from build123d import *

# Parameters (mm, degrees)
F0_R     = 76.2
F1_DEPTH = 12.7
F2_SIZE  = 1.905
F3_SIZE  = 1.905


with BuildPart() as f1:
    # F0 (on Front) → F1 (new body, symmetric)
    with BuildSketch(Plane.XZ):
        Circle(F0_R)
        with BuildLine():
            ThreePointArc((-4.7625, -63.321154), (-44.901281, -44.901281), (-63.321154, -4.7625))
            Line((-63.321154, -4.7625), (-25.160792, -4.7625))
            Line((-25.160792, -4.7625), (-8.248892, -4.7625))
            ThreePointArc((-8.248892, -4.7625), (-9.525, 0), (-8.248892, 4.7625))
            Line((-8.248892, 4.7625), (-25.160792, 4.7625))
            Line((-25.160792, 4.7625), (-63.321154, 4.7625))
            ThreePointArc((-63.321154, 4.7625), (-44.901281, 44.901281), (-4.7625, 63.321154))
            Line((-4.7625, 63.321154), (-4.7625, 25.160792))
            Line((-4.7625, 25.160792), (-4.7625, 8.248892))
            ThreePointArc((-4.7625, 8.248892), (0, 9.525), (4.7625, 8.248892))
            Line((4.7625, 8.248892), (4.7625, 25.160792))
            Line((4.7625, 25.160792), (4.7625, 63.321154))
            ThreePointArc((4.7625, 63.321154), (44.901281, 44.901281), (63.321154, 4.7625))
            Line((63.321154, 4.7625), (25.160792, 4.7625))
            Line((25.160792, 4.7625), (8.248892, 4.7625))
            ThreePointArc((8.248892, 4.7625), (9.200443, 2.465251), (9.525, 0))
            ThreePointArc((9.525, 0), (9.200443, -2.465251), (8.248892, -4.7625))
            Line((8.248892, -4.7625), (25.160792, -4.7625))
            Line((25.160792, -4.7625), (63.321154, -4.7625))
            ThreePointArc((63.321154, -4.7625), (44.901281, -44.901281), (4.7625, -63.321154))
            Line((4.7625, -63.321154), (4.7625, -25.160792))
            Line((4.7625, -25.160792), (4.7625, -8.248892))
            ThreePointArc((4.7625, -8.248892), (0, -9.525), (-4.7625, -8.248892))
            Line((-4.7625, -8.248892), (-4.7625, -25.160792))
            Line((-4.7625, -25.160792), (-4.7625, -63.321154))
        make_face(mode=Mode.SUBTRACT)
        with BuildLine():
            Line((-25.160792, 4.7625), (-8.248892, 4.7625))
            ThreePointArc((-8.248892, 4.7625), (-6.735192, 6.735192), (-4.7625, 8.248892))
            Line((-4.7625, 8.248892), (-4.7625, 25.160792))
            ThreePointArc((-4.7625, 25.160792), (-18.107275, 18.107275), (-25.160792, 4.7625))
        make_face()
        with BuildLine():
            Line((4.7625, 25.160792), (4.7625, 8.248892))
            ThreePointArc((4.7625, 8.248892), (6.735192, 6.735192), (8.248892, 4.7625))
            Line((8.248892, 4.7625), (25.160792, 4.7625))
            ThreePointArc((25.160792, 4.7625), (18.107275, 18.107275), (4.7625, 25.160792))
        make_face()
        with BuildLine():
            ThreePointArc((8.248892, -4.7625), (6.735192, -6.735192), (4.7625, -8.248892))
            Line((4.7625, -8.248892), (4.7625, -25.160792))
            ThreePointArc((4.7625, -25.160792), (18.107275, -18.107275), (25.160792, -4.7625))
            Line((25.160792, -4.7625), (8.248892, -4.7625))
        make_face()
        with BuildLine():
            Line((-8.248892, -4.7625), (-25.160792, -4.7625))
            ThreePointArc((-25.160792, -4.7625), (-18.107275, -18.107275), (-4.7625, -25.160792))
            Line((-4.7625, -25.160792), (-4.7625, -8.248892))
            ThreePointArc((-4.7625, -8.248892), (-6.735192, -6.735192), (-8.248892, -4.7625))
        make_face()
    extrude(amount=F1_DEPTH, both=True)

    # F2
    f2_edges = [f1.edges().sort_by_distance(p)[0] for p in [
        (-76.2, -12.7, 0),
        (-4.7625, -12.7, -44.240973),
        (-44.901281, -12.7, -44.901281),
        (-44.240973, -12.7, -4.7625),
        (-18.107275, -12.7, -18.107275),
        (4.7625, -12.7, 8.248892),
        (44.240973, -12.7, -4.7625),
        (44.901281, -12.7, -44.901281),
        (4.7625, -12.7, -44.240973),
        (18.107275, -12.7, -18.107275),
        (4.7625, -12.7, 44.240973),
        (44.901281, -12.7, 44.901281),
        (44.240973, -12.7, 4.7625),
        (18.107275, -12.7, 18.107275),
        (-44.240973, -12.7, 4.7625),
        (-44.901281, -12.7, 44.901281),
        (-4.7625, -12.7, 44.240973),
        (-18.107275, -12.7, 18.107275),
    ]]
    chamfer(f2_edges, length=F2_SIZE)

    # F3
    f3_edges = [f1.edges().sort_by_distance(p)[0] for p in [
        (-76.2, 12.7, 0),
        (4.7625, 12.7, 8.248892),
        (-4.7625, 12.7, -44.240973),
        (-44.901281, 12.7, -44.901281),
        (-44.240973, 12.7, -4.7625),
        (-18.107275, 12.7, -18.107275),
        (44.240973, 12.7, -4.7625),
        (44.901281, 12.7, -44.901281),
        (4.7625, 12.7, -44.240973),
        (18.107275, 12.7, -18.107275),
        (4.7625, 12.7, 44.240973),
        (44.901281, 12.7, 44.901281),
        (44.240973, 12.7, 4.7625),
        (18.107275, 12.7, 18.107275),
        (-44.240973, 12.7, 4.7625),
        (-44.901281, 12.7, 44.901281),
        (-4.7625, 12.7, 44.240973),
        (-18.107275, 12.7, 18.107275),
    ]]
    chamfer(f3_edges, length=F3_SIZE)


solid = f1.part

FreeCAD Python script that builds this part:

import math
import FreeCAD as App
import Part
import Sketcher
Q = App.Units.Quantity


def edges_at(feature, points):
    """Names of the edges that pass closest to the given points."""
    edges = feature.Shape.Edges
    near = lambda p: min(range(len(edges)), key=lambda i: edges[i].distToShape(Part.Vertex(*p))[0])
    return sorted({f"Edge{near(p) + 1}" for p in points})

doc = App.newDocument("Part")
params = doc.addObject("Spreadsheet::Sheet", "Params")
for row, (alias, value) in enumerate([
    ("sketch1_diameter", "6 in"),
    ("sketch1_radius", "2.4999999 in"),
    ("sketch1_radius2", "0.375 in"),
    ("pad1_length", "1 in"),
    ("chamfer_size", "0.075 in"),
    ("chamfer2_size", "0.075 in"),
], start=1):
    params.set(f"A{row}", alias)
    params.set(f"B{row}", "=" + value)
    params.setAlias(f"B{row}", alias)

body = doc.addObject("PartDesign::Body", "Body")

# Sketch on XZ plane
sketch1 = doc.addObject("Sketcher::SketchObject", "Sketch")
body.addObject(sketch1)
sketch1.AttachmentSupport = (doc.XZ_Plane, [""])
sketch1.MapMode = "FlatFace"
sketch1.addGeometry([
    Part.Circle(App.Vector(0, 0, 0), App.Vector(0, 0, 1), 76.2),  # 0
    Part.LineSegment(App.Vector(-4.7625, -25.160792, 0), App.Vector(-4.7625, -63.321154, 0)),  # 1
    Part.ArcOfCircle(Part.Circle(App.Vector(-0.000003, -0.000003, 0), App.Vector(0, 0, 1), 63.499997), math.radians(-175.69878), math.radians(-94.30122)),  # 2
    Part.LineSegment(App.Vector(-63.321154, -4.7625, 0), App.Vector(-25.160792, -4.7625, 0)),  # 3
    Part.ArcOfCircle(Part.Circle(App.Vector(0.000004, 0.000004, 0), App.Vector(0, 0, 1), 25.607559), math.radians(-169.281704), math.radians(-100.718296)),  # 4
    Part.ArcOfCircle(Part.Circle(App.Vector(0, 0, 0), App.Vector(0, 0, 1), 9.525), math.radians(150.000001), math.radians(209.999999)),  # 5
    Part.ArcOfCircle(Part.Circle(App.Vector(0.000003, -0.000003, 0), App.Vector(0, 0, 1), 9.525004), math.radians(120.000007), math.radians(149.999993)),  # 6
    Part.ArcOfCircle(Part.Circle(App.Vector(0, 0, 0), App.Vector(0, 0, 1), 9.525), math.radians(60.000001), math.radians(119.999999)),  # 7
    Part.ArcOfCircle(Part.Circle(App.Vector(-0.000003, -0.000003, 0), App.Vector(0, 0, 1), 9.525004), math.radians(30.000007), math.radians(59.999993)),  # 8
    Part.ArcOfCircle(Part.Circle(App.Vector(-0.000017, -0.000004, 0), App.Vector(0, 0, 1), 9.525017), math.radians(0.000027), math.radians(29.999972)),  # 9
    Part.ArcOfCircle(Part.Circle(App.Vector(-0.000017, 0.000004, 0), App.Vector(0, 0, 1), 9.525017), math.radians(-29.999972), math.radians(-0.000027)),  # 10
    Part.ArcOfCircle(Part.Circle(App.Vector(-0.000003, 0.000003, 0), App.Vector(0, 0, 1), 9.525004), math.radians(-59.999993), math.radians(-30.000007)),  # 11
    Part.ArcOfCircle(Part.Circle(App.Vector(0, 0, 0), App.Vector(0, 0, 1), 9.525), math.radians(-119.999999), math.radians(-60.000001)),  # 12
    Part.ArcOfCircle(Part.Circle(App.Vector(0.000003, 0.000003, 0), App.Vector(0, 0, 1), 9.525004), math.radians(-149.999993), math.radians(-120.000007)),  # 13
    Part.LineSegment(App.Vector(25.160792, -4.7625, 0), App.Vector(63.321154, -4.7625, 0)),  # 14
    Part.ArcOfCircle(Part.Circle(App.Vector(0.000003, -0.000003, 0), App.Vector(0, 0, 1), 63.499997), math.radians(-85.69878), math.radians(-4.30122)),  # 15
    Part.LineSegment(App.Vector(4.7625, -63.321154, 0), App.Vector(4.7625, -25.160792, 0)),  # 16
    Part.ArcOfCircle(Part.Circle(App.Vector(-0.000004, 0.000004, 0), App.Vector(0, 0, 1), 25.607559), math.radians(-79.281704), math.radians(-10.718296)),  # 17
    Part.LineSegment(App.Vector(4.7625, 25.160792, 0), App.Vector(4.7625, 63.321154, 0)),  # 18
    Part.ArcOfCircle(Part.Circle(App.Vector(0.000003, 0.000003, 0), App.Vector(0, 0, 1), 63.499997), math.radians(4.30122), math.radians(85.69878)),  # 19
    Part.LineSegment(App.Vector(63.321154, 4.7625, 0), App.Vector(25.160792, 4.7625, 0)),  # 20
    Part.ArcOfCircle(Part.Circle(App.Vector(-0.000004, -0.000004, 0), App.Vector(0, 0, 1), 25.607559), math.radians(10.718296), math.radians(79.281704)),  # 21
    Part.LineSegment(App.Vector(-4.7625, 63.321154, 0), App.Vector(-4.7625, 25.160792, 0)),  # 22
    Part.ArcOfCircle(Part.Circle(App.Vector(0.000004, -0.000004, 0), App.Vector(0, 0, 1), 25.607559), math.radians(100.718296), math.radians(169.281704)),  # 23
    Part.LineSegment(App.Vector(-25.160792, 4.7625, 0), App.Vector(-63.321154, 4.7625, 0)),  # 24
    Part.ArcOfCircle(Part.Circle(App.Vector(-0.000003, 0.000003, 0), App.Vector(0, 0, 1), 63.499997), math.radians(94.30122), math.radians(175.69878)),  # 25
], False)
sketch1.addConstraint([
    Sketcher.Constraint("Coincident", 1, 2, 2, 2),
    Sketcher.Constraint("Coincident", 2, 1, 3, 1),
    Sketcher.Constraint("Coincident", 3, 2, 4, 1),
    Sketcher.Constraint("Coincident", 4, 2, 1, 1),
    Sketcher.Constraint("Tangent", 5, 1, 6, 2),
    Sketcher.Constraint("Tangent", 6, 1, 7, 2),
    Sketcher.Constraint("Tangent", 7, 1, 8, 2),
    Sketcher.Constraint("Tangent", 8, 1, 9, 2),
    Sketcher.Constraint("Tangent", 9, 1, 10, 2),
    Sketcher.Constraint("Tangent", 10, 1, 11, 2),
    Sketcher.Constraint("Tangent", 11, 1, 12, 2),
    Sketcher.Constraint("Tangent", 12, 1, 13, 2),
    Sketcher.Constraint("Tangent", 13, 1, 5, 2),
    Sketcher.Constraint("Coincident", 14, 2, 15, 2),
    Sketcher.Constraint("Coincident", 15, 1, 16, 1),
    Sketcher.Constraint("Coincident", 16, 2, 17, 1),
    Sketcher.Constraint("Coincident", 17, 2, 14, 1),
    Sketcher.Constraint("Coincident", 18, 2, 19, 2),
    Sketcher.Constraint("Coincident", 19, 1, 20, 1),
    Sketcher.Constraint("Coincident", 20, 2, 21, 1),
    Sketcher.Constraint("Coincident", 21, 2, 18, 1),
    Sketcher.Constraint("Coincident", 22, 2, 23, 1),
    Sketcher.Constraint("Coincident", 23, 2, 24, 1),
    Sketcher.Constraint("Coincident", 24, 2, 25, 2),
    Sketcher.Constraint("Coincident", 25, 1, 22, 1),
    Sketcher.Constraint("Vertical", 1),
    Sketcher.Constraint("Horizontal", 3),
    Sketcher.Constraint("Horizontal", 14),
    Sketcher.Constraint("Vertical", 16),
    Sketcher.Constraint("Vertical", 18),
    Sketcher.Constraint("Horizontal", 20),
    Sketcher.Constraint("Vertical", 22),
    Sketcher.Constraint("Horizontal", 24),
    Sketcher.Constraint("Coincident", 0, 3, -1, 1),
    Sketcher.Constraint("Coincident", 2, 3, -1, 1),
    Sketcher.Constraint("Coincident", 4, 3, -1, 1),
    Sketcher.Constraint("Coincident", 5, 3, -1, 1),
    Sketcher.Constraint("Coincident", 7, 3, -1, 1),
    Sketcher.Constraint("Coincident", 11, 3, -1, 1),
    Sketcher.Constraint("Coincident", 15, 3, -1, 1),
    Sketcher.Constraint("Coincident", 17, 3, -1, 1),
    Sketcher.Constraint("Coincident", 19, 3, -1, 1),
    Sketcher.Constraint("Coincident", 21, 3, -1, 1),
    Sketcher.Constraint("Coincident", 23, 3, -1, 1),
    Sketcher.Constraint("Coincident", 25, 3, -1, 1),
    Sketcher.Constraint("Equal", 6, 8),
    Sketcher.Constraint("Equal", 9, 10),
    Sketcher.Constraint("Equal", 2, 15),
    Sketcher.Constraint("Equal", 4, 17),
    Sketcher.Constraint("Equal", 15, 19),
    Sketcher.Constraint("Equal", 17, 21),
    Sketcher.Constraint("Equal", 21, 23),
    Sketcher.Constraint("Equal", 19, 25),
    Sketcher.Constraint("PointOnObject", 9, 1, -1),
    Sketcher.Constraint("Horizontal", 6, 1, 7, 1),
    Sketcher.Constraint("Horizontal", 5, 1, 8, 1),
    Sketcher.Constraint("Horizontal", 3, 2, 10, 1),
    Sketcher.Constraint("Horizontal", 11, 1, 12, 1),
    Sketcher.Constraint("Horizontal", 10, 1, 13, 1),
    Sketcher.Constraint("Horizontal", 13, 1, 14, 2),
    Sketcher.Constraint("Horizontal", 1, 2, 15, 1),
    Sketcher.Constraint("Horizontal", 8, 1, 19, 1),
    Sketcher.Constraint("Horizontal", 21, 2, 22, 2),
    Sketcher.Constraint("Horizontal", 20, 2, 23, 2),
    Sketcher.Constraint("Vertical", 4, 2, 6, 1),
    Sketcher.Constraint("Vertical", 8, 1, 10, 1),
    Sketcher.Constraint("Vertical", 7, 1, 11, 1),
    Sketcher.Constraint("Vertical", 16, 2, 18, 2),
    Sketcher.Constraint("Equal", 24, 1),
    Sketcher.Constraint("Diameter", 0, Q("6 in")),
    Sketcher.Constraint("Radius", 2, Q("2.4999999 in")),
    Sketcher.Constraint("Radius", 5, Q("0.375 in")),
    Sketcher.Constraint("DistanceX", 1, 2, -1, 1, Q("0.1875 in")),
    Sketcher.Constraint("Radius", 4, 25.607559),
])
sketch1.setExpression("Constraints[69]", "Params.sketch1_diameter")
sketch1.setExpression("Constraints[70]", "Params.sketch1_radius")
sketch1.setExpression("Constraints[71]", "Params.sketch1_radius2")
pad1 = doc.addObject("PartDesign::Pad", "Pad")
body.addObject(pad1)
pad1.Profile = sketch1
pad1.setExpression("Length", "Params.pad1_length")
pad1.Midplane = True
doc.recompute()

chamfer = doc.addObject("PartDesign::Chamfer", "Chamfer")
body.addObject(chamfer)
chamfer.Base = (pad1, edges_at(pad1, [
    (-76.2, -12.7, 0),
    (-4.763, -12.7, -44.241),
    (-44.901, -12.7, -44.901),
    (-44.241, -12.7, -4.763),
    (-18.107, -12.7, -18.107),
    (0, -12.7, 9.525),
    (44.241, -12.7, -4.763),
    (44.901, -12.7, -44.901),
    (4.763, -12.7, -44.241),
    (18.107, -12.7, -18.107),
    (4.763, -12.7, 44.241),
    (44.901, -12.7, 44.901),
    (44.241, -12.7, 4.763),
    (18.107, -12.7, 18.107),
    (-44.241, -12.7, 4.763),
    (-44.901, -12.7, 44.901),
    (-4.763, -12.7, 44.241),
    (-18.107, -12.7, 18.107),
]))
chamfer.setExpression("Size", "Params.chamfer_size")
doc.recompute()

chamfer2 = doc.addObject("PartDesign::Chamfer", "Chamfer001")
body.addObject(chamfer2)
chamfer2.Base = (chamfer, edges_at(chamfer, [
    (-76.2, 12.7, 0),
    (0, 12.7, 9.525),
    (-4.763, 12.7, -44.241),
    (-44.901, 12.7, -44.901),
    (-44.241, 12.7, -4.763),
    (-18.107, 12.7, -18.107),
    (44.241, 12.7, -4.763),
    (44.901, 12.7, -44.901),
    (4.763, 12.7, -44.241),
    (18.107, 12.7, -18.107),
    (4.763, 12.7, 44.241),
    (44.901, 12.7, 44.901),
    (44.241, 12.7, 4.763),
    (18.107, 12.7, 18.107),
    (-44.241, 12.7, 4.763),
    (-44.901, 12.7, 44.901),
    (-4.763, 12.7, 44.241),
    (-18.107, 12.7, 18.107),
]))
chamfer2.setExpression("Size", "Params.chamfer2_size")

doc.recompute()
